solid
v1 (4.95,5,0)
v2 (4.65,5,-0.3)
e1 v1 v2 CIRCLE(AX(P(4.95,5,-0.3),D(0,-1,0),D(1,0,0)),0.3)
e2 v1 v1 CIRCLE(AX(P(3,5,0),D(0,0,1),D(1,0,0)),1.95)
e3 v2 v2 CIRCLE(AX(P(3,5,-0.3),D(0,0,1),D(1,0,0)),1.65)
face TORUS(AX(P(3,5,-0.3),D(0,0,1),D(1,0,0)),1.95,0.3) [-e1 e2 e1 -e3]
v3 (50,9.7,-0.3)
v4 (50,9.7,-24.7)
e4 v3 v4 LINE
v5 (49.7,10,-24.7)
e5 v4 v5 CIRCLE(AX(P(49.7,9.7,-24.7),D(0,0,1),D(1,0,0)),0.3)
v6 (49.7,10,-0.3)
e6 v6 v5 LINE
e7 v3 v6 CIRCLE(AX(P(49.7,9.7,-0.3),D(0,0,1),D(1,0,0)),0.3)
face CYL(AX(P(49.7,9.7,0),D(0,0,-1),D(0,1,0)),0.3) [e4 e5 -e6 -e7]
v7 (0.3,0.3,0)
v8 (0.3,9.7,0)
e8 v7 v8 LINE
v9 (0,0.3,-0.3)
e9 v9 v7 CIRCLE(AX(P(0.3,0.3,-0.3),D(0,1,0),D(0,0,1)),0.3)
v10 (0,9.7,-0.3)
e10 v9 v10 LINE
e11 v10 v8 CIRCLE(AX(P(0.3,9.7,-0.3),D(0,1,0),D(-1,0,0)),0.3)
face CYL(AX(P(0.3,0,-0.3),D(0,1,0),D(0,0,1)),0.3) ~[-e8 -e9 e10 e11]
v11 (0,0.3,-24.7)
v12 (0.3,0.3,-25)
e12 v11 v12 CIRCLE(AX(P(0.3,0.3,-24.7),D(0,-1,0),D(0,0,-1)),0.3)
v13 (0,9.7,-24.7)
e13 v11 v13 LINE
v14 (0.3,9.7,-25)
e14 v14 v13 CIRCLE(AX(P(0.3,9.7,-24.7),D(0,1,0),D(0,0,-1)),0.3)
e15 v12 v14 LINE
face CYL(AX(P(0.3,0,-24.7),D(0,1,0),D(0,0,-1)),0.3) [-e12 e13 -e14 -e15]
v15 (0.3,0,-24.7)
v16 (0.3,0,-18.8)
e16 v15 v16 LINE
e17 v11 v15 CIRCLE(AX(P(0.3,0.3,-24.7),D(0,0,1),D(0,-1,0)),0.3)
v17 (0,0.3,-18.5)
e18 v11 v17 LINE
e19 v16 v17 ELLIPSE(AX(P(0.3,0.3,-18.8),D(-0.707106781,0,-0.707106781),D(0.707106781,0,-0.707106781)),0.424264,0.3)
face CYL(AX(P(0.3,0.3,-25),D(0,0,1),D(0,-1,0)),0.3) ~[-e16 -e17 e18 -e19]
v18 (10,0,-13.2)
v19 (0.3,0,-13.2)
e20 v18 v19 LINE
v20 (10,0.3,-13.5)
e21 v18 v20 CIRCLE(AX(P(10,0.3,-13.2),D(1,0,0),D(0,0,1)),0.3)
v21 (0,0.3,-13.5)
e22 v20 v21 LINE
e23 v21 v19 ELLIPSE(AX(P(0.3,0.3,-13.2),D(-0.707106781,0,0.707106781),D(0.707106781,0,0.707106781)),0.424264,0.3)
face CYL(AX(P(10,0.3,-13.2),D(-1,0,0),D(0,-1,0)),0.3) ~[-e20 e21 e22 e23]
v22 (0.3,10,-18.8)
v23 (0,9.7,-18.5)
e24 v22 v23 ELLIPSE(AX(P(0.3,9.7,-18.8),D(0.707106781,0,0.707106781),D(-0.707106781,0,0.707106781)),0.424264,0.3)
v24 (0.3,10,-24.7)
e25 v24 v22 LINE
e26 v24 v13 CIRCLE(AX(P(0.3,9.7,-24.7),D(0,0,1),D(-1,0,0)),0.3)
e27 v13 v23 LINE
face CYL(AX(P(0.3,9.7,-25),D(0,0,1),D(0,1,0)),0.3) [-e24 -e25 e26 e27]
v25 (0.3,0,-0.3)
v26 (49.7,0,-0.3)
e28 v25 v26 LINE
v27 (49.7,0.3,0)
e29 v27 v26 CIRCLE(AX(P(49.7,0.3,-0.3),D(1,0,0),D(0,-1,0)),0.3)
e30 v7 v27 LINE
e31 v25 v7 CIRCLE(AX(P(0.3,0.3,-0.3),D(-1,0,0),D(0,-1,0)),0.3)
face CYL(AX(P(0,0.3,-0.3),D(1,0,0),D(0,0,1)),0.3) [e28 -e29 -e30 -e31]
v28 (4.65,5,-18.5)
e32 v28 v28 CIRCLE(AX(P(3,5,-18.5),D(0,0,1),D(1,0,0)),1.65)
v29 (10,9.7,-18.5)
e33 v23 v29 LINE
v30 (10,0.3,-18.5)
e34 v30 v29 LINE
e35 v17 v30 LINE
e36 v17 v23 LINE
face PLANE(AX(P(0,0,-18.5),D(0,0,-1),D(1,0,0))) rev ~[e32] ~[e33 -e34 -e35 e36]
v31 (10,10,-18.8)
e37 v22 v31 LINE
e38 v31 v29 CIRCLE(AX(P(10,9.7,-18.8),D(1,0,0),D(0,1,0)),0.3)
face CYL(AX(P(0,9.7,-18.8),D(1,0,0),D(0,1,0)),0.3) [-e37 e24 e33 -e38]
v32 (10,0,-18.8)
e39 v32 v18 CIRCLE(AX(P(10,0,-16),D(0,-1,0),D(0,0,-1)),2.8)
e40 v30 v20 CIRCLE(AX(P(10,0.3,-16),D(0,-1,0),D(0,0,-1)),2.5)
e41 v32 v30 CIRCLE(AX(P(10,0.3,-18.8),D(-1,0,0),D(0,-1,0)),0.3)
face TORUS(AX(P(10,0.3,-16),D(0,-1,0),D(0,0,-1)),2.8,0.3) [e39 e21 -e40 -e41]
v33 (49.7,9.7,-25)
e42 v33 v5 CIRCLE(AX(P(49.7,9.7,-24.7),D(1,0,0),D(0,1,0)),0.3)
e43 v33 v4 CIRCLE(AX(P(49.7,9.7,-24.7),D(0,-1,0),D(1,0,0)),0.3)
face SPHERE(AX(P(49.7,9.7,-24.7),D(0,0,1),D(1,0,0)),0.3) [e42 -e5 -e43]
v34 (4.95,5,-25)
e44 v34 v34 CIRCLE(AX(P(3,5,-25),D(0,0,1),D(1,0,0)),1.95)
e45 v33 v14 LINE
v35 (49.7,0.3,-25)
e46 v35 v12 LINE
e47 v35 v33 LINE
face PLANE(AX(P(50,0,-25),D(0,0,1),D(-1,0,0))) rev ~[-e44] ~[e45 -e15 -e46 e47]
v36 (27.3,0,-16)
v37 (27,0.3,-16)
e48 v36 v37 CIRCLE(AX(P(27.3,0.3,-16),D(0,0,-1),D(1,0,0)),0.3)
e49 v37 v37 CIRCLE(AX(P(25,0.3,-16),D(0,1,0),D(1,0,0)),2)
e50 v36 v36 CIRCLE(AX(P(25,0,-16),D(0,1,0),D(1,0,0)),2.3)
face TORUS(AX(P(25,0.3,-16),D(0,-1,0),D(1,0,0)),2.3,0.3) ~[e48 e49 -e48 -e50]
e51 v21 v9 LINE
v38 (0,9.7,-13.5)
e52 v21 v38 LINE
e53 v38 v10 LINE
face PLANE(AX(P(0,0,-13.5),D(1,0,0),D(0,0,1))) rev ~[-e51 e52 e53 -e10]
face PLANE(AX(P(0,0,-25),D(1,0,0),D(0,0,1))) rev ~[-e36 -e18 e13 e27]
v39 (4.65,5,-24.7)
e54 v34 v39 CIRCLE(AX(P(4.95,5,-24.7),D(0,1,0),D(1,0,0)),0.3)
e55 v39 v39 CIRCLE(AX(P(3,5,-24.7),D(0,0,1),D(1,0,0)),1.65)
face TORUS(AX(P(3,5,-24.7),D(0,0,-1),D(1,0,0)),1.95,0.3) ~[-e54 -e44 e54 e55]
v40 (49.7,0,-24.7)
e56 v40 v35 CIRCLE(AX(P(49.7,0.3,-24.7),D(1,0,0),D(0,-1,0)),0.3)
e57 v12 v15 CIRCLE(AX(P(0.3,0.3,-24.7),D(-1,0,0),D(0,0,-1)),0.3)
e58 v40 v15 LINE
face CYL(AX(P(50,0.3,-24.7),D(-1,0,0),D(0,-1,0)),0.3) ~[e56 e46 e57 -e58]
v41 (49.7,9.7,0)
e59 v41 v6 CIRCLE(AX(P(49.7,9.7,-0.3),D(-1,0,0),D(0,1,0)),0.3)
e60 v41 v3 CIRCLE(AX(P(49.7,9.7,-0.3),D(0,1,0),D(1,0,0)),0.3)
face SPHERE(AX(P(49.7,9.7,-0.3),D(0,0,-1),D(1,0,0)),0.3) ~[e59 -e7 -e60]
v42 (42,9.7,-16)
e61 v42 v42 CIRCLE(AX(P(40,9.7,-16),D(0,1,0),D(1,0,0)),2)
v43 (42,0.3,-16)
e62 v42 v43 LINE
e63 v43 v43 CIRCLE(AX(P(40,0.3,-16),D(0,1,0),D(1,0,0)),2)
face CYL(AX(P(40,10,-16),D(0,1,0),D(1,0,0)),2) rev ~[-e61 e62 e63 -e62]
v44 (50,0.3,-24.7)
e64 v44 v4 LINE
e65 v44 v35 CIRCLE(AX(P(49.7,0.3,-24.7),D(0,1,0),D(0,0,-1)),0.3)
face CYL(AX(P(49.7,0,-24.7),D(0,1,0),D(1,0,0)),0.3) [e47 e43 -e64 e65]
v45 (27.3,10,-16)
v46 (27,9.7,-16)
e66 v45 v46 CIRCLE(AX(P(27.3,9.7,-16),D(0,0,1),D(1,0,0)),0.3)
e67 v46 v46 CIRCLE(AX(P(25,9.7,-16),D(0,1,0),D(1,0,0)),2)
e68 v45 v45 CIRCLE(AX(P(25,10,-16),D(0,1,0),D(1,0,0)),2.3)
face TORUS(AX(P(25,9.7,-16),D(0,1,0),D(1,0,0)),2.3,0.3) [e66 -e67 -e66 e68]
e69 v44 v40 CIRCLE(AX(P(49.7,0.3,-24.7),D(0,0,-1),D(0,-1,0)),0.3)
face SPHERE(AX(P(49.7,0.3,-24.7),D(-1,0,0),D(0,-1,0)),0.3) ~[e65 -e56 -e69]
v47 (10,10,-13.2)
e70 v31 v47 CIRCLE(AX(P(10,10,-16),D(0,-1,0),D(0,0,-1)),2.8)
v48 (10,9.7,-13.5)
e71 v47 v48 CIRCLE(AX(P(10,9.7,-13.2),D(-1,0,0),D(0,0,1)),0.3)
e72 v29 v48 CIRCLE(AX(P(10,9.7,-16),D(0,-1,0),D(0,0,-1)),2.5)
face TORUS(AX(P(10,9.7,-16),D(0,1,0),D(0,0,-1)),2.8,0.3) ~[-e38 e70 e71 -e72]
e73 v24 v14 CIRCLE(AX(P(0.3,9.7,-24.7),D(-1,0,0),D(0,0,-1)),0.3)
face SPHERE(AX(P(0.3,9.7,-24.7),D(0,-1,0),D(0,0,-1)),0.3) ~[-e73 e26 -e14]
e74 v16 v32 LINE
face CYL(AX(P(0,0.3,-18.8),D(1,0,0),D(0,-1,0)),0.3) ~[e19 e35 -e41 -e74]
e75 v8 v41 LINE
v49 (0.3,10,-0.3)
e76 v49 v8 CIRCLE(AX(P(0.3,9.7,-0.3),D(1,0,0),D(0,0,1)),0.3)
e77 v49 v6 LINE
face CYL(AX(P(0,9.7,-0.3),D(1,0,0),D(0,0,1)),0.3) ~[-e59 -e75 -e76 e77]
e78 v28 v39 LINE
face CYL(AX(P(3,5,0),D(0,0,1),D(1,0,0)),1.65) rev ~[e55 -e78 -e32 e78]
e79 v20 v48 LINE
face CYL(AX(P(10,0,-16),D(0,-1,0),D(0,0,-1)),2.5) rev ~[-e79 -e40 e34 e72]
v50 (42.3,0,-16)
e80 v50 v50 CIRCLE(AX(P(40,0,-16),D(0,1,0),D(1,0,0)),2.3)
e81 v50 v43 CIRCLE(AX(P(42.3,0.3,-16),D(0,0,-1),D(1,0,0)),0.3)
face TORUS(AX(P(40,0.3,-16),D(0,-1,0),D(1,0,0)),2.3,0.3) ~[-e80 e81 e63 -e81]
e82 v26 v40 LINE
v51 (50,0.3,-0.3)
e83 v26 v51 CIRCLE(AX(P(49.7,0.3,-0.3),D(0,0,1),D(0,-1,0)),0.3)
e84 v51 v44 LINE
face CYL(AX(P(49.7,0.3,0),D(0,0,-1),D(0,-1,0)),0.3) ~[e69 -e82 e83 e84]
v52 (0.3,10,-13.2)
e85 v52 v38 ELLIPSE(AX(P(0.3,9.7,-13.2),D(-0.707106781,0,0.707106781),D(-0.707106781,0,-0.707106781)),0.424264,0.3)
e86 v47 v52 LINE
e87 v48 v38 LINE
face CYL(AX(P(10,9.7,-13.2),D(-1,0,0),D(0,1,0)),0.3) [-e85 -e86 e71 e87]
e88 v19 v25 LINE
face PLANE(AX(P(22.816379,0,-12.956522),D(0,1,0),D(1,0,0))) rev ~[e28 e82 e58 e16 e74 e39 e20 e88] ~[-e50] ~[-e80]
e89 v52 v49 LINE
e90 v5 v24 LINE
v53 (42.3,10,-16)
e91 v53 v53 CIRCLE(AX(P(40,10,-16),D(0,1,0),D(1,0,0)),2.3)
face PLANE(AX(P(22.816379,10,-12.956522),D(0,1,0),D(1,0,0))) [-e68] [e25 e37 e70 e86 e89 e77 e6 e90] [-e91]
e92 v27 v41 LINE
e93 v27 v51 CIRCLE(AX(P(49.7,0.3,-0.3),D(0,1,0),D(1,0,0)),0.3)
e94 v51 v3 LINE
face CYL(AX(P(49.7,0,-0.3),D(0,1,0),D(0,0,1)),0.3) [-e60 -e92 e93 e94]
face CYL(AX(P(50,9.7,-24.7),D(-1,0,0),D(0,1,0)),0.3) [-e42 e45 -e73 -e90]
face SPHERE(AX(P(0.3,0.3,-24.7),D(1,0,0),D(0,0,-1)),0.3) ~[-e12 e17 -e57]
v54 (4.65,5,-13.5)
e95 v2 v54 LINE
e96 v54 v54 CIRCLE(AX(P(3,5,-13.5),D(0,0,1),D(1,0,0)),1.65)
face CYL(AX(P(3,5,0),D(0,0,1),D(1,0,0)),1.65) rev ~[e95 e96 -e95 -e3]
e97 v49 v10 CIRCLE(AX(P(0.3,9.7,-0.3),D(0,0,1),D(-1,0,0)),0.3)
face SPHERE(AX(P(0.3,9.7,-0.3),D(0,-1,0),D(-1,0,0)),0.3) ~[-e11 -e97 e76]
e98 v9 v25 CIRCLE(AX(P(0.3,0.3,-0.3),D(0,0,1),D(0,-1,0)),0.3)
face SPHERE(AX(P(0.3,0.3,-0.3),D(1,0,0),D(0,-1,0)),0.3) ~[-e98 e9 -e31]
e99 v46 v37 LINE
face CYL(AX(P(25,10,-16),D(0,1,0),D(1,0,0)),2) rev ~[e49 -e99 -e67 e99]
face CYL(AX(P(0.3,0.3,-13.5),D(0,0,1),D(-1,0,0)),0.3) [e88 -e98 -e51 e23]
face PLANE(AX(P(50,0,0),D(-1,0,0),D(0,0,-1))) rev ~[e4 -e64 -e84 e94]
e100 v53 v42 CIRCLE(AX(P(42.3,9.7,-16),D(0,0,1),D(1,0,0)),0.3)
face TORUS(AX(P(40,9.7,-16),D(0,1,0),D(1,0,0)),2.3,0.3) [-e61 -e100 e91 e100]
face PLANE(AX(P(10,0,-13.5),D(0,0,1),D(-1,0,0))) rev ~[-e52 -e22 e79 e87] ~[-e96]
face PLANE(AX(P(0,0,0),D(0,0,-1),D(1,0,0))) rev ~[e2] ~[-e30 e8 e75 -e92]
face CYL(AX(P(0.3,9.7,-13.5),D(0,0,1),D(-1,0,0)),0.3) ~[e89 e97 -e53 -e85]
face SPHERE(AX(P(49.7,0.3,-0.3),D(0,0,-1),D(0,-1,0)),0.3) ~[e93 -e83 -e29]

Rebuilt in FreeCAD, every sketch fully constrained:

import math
import FreeCAD as App
import Part
import Sketcher

V = App.Vector


def edges_at(feature, points):
    """Names of the edges that pass closest to the given points."""
    edges = feature.Shape.Edges
    near = lambda p: min(range(len(edges)), key=lambda i: edges[i].distToShape(Part.Vertex(*p))[0])
    return sorted({f"Edge{near(p) + 1}" for p in points})

doc = App.newDocument("Part")
body = doc.addObject("PartDesign::Body", "Body")

sketch1 = body.newObject("Sketcher::SketchObject", "Sketch")
sketch1.AttachmentSupport = (doc.getObject("XZ_Plane"), [""])
sketch1.MapMode = "FlatFace"
sketch1.addGeometry([
    Part.LineSegment(V(0, 0, 0), V(50, 0, 0)),
    Part.LineSegment(V(50, 0, 0), V(50, -25, 0)),
    Part.LineSegment(V(50, -25, 0), V(0, -25, 0)),
    Part.LineSegment(V(0, -25, 0), V(0, -18.5, 0)),
    Part.LineSegment(V(0, -18.5, 0), V(10, -18.5, 0)),
    Part.ArcOfCircle(Part.Circle(V(10, -16, 0), V(0, 0, 1), 2.5), math.radians(-90), math.radians(90)),
    Part.LineSegment(V(10, -13.5, 0), V(0, -13.5, 0)),
    Part.LineSegment(V(0, -13.5, 0), V(0, 0, 0)),
], False)
sketch1.addConstraint([
    Sketcher.Constraint("Coincident", 0, 2, 1, 1),
    Sketcher.Constraint("Coincident", 1, 2, 2, 1),
    Sketcher.Constraint("Coincident", 2, 2, 3, 1),
    Sketcher.Constraint("Coincident", 3, 2, 4, 1),
    Sketcher.Constraint("Tangent", 4, 2, 5, 1),
    Sketcher.Constraint("Tangent", 5, 2, 6, 1),
    Sketcher.Constraint("Coincident", 6, 2, 7, 1),
    Sketcher.Constraint("Coincident", 7, 2, 0, 1),
    Sketcher.Constraint("Horizontal", 0),
    Sketcher.Constraint("Vertical", 1),
    Sketcher.Constraint("Horizontal", 2),
    Sketcher.Constraint("Vertical", 3),
    Sketcher.Constraint("Horizontal", 4),
    Sketcher.Constraint("Horizontal", 6),
    Sketcher.Constraint("Vertical", 7),
    Sketcher.Constraint("Coincident", 7, 2, -1, 1),
    Sketcher.Constraint("PointOnObject", 2, 2, -2),
    Sketcher.Constraint("Radius", 5, 2.5),
    Sketcher.Constraint("DistanceX", 0, 1, 0, 2, 50.0),
    Sketcher.Constraint("DistanceX", 4, 1, 4, 2, 10.0),
    Sketcher.Constraint("DistanceY", 1, 2, 1, 1, 25.0),
    Sketcher.Constraint("DistanceY", 3, 1, 3, 2, 6.5),
])
pad1 = body.newObject("PartDesign::Pad", "Pad")
pad1.Profile = sketch1
pad1.Length = 10
pad1.Reversed = True

sketch2 = body.newObject("Sketcher::SketchObject", "Sketch001")
sketch2.AttachmentSupport = (doc.getObject("XZ_Plane"), [""])
sketch2.MapMode = "FlatFace"
sketch2.AttachmentOffset = App.Placement(V(0, 0, -10), App.Rotation())
sketch2.addGeometry([
    Part.Circle(V(40, -16, 0), V(0, 0, 1), 2),
    Part.Circle(V(25, -16, 0), V(0, 0, 1), 2),
], False)
sketch2.addConstraint([
    Sketcher.Constraint("Equal", 0, 1),
    Sketcher.Constraint("Horizontal", 0, 3, 1, 3),
    Sketcher.Constraint("Diameter", 0, 4.0),
    Sketcher.Constraint("DistanceX", -1, 1, 0, 3, 40.0),
    Sketcher.Constraint("DistanceY", 0, 3, -1, 1, 16.0),
    Sketcher.Constraint("DistanceX", -1, 1, 1, 3, 25.0),
])
pocket1 = body.newObject("PartDesign::Pocket", "Pocket")
pocket1.Profile = sketch2
pocket1.Type = "ThroughAll"
pocket1.Reversed = True

sketch3 = body.newObject("Sketcher::SketchObject", "Sketch002")
sketch3.AttachmentSupport = (doc.getObject("XY_Plane"), [""])
sketch3.MapMode = "FlatFace"
sketch3.addGeometry(Part.Circle(V(3, 5, 0), V(0, 0, 1), 1.6), False)
sketch3.addConstraint([
    Sketcher.Constraint("Diameter", 0, 3.3),
    Sketcher.Constraint("DistanceX", -1, 1, 0, 3, 3.0),
    Sketcher.Constraint("DistanceY", -1, 1, 0, 3, 5.0),
])
pocket2 = body.newObject("PartDesign::Pocket", "Pocket001")
pocket2.Profile = sketch3
pocket2.Type = "ThroughAll"
doc.recompute()

fillet = body.newObject("PartDesign::Fillet", "Fillet")
fillet.Base = (pocket2, edges_at(pocket2, [
    (25, 0, -25),
    (50, 0, -12.5),
    (25, 0, 0),
    (0, 0, -6.75),
    (50, 10, -12.5),
    (0, 5, -25),
    (50, 5, -25),
    (50, 5, 0),
    (0, 5, 0),
    (25, 10, -25),
    (0, 10, -21.75),
    (5, 10, -18.5),
    (38, 0, -16),
    (12.5, 10, -16),
    (38, 10, -16),
    (23, 0, -16),
    (23, 10, -16),
    (5, 10, -13.5),
    (1.35, 5, -25),
    (1.35, 5, 0),
    (0, 10, -6.75),
    (5, 0, -13.5),
    (25, 10, 0),
    (12.5, 0, -16),
    (5, 0, -18.5),
    (0, 0, -21.75),
]))
fillet.Radius = 0.3

doc.recompute()
